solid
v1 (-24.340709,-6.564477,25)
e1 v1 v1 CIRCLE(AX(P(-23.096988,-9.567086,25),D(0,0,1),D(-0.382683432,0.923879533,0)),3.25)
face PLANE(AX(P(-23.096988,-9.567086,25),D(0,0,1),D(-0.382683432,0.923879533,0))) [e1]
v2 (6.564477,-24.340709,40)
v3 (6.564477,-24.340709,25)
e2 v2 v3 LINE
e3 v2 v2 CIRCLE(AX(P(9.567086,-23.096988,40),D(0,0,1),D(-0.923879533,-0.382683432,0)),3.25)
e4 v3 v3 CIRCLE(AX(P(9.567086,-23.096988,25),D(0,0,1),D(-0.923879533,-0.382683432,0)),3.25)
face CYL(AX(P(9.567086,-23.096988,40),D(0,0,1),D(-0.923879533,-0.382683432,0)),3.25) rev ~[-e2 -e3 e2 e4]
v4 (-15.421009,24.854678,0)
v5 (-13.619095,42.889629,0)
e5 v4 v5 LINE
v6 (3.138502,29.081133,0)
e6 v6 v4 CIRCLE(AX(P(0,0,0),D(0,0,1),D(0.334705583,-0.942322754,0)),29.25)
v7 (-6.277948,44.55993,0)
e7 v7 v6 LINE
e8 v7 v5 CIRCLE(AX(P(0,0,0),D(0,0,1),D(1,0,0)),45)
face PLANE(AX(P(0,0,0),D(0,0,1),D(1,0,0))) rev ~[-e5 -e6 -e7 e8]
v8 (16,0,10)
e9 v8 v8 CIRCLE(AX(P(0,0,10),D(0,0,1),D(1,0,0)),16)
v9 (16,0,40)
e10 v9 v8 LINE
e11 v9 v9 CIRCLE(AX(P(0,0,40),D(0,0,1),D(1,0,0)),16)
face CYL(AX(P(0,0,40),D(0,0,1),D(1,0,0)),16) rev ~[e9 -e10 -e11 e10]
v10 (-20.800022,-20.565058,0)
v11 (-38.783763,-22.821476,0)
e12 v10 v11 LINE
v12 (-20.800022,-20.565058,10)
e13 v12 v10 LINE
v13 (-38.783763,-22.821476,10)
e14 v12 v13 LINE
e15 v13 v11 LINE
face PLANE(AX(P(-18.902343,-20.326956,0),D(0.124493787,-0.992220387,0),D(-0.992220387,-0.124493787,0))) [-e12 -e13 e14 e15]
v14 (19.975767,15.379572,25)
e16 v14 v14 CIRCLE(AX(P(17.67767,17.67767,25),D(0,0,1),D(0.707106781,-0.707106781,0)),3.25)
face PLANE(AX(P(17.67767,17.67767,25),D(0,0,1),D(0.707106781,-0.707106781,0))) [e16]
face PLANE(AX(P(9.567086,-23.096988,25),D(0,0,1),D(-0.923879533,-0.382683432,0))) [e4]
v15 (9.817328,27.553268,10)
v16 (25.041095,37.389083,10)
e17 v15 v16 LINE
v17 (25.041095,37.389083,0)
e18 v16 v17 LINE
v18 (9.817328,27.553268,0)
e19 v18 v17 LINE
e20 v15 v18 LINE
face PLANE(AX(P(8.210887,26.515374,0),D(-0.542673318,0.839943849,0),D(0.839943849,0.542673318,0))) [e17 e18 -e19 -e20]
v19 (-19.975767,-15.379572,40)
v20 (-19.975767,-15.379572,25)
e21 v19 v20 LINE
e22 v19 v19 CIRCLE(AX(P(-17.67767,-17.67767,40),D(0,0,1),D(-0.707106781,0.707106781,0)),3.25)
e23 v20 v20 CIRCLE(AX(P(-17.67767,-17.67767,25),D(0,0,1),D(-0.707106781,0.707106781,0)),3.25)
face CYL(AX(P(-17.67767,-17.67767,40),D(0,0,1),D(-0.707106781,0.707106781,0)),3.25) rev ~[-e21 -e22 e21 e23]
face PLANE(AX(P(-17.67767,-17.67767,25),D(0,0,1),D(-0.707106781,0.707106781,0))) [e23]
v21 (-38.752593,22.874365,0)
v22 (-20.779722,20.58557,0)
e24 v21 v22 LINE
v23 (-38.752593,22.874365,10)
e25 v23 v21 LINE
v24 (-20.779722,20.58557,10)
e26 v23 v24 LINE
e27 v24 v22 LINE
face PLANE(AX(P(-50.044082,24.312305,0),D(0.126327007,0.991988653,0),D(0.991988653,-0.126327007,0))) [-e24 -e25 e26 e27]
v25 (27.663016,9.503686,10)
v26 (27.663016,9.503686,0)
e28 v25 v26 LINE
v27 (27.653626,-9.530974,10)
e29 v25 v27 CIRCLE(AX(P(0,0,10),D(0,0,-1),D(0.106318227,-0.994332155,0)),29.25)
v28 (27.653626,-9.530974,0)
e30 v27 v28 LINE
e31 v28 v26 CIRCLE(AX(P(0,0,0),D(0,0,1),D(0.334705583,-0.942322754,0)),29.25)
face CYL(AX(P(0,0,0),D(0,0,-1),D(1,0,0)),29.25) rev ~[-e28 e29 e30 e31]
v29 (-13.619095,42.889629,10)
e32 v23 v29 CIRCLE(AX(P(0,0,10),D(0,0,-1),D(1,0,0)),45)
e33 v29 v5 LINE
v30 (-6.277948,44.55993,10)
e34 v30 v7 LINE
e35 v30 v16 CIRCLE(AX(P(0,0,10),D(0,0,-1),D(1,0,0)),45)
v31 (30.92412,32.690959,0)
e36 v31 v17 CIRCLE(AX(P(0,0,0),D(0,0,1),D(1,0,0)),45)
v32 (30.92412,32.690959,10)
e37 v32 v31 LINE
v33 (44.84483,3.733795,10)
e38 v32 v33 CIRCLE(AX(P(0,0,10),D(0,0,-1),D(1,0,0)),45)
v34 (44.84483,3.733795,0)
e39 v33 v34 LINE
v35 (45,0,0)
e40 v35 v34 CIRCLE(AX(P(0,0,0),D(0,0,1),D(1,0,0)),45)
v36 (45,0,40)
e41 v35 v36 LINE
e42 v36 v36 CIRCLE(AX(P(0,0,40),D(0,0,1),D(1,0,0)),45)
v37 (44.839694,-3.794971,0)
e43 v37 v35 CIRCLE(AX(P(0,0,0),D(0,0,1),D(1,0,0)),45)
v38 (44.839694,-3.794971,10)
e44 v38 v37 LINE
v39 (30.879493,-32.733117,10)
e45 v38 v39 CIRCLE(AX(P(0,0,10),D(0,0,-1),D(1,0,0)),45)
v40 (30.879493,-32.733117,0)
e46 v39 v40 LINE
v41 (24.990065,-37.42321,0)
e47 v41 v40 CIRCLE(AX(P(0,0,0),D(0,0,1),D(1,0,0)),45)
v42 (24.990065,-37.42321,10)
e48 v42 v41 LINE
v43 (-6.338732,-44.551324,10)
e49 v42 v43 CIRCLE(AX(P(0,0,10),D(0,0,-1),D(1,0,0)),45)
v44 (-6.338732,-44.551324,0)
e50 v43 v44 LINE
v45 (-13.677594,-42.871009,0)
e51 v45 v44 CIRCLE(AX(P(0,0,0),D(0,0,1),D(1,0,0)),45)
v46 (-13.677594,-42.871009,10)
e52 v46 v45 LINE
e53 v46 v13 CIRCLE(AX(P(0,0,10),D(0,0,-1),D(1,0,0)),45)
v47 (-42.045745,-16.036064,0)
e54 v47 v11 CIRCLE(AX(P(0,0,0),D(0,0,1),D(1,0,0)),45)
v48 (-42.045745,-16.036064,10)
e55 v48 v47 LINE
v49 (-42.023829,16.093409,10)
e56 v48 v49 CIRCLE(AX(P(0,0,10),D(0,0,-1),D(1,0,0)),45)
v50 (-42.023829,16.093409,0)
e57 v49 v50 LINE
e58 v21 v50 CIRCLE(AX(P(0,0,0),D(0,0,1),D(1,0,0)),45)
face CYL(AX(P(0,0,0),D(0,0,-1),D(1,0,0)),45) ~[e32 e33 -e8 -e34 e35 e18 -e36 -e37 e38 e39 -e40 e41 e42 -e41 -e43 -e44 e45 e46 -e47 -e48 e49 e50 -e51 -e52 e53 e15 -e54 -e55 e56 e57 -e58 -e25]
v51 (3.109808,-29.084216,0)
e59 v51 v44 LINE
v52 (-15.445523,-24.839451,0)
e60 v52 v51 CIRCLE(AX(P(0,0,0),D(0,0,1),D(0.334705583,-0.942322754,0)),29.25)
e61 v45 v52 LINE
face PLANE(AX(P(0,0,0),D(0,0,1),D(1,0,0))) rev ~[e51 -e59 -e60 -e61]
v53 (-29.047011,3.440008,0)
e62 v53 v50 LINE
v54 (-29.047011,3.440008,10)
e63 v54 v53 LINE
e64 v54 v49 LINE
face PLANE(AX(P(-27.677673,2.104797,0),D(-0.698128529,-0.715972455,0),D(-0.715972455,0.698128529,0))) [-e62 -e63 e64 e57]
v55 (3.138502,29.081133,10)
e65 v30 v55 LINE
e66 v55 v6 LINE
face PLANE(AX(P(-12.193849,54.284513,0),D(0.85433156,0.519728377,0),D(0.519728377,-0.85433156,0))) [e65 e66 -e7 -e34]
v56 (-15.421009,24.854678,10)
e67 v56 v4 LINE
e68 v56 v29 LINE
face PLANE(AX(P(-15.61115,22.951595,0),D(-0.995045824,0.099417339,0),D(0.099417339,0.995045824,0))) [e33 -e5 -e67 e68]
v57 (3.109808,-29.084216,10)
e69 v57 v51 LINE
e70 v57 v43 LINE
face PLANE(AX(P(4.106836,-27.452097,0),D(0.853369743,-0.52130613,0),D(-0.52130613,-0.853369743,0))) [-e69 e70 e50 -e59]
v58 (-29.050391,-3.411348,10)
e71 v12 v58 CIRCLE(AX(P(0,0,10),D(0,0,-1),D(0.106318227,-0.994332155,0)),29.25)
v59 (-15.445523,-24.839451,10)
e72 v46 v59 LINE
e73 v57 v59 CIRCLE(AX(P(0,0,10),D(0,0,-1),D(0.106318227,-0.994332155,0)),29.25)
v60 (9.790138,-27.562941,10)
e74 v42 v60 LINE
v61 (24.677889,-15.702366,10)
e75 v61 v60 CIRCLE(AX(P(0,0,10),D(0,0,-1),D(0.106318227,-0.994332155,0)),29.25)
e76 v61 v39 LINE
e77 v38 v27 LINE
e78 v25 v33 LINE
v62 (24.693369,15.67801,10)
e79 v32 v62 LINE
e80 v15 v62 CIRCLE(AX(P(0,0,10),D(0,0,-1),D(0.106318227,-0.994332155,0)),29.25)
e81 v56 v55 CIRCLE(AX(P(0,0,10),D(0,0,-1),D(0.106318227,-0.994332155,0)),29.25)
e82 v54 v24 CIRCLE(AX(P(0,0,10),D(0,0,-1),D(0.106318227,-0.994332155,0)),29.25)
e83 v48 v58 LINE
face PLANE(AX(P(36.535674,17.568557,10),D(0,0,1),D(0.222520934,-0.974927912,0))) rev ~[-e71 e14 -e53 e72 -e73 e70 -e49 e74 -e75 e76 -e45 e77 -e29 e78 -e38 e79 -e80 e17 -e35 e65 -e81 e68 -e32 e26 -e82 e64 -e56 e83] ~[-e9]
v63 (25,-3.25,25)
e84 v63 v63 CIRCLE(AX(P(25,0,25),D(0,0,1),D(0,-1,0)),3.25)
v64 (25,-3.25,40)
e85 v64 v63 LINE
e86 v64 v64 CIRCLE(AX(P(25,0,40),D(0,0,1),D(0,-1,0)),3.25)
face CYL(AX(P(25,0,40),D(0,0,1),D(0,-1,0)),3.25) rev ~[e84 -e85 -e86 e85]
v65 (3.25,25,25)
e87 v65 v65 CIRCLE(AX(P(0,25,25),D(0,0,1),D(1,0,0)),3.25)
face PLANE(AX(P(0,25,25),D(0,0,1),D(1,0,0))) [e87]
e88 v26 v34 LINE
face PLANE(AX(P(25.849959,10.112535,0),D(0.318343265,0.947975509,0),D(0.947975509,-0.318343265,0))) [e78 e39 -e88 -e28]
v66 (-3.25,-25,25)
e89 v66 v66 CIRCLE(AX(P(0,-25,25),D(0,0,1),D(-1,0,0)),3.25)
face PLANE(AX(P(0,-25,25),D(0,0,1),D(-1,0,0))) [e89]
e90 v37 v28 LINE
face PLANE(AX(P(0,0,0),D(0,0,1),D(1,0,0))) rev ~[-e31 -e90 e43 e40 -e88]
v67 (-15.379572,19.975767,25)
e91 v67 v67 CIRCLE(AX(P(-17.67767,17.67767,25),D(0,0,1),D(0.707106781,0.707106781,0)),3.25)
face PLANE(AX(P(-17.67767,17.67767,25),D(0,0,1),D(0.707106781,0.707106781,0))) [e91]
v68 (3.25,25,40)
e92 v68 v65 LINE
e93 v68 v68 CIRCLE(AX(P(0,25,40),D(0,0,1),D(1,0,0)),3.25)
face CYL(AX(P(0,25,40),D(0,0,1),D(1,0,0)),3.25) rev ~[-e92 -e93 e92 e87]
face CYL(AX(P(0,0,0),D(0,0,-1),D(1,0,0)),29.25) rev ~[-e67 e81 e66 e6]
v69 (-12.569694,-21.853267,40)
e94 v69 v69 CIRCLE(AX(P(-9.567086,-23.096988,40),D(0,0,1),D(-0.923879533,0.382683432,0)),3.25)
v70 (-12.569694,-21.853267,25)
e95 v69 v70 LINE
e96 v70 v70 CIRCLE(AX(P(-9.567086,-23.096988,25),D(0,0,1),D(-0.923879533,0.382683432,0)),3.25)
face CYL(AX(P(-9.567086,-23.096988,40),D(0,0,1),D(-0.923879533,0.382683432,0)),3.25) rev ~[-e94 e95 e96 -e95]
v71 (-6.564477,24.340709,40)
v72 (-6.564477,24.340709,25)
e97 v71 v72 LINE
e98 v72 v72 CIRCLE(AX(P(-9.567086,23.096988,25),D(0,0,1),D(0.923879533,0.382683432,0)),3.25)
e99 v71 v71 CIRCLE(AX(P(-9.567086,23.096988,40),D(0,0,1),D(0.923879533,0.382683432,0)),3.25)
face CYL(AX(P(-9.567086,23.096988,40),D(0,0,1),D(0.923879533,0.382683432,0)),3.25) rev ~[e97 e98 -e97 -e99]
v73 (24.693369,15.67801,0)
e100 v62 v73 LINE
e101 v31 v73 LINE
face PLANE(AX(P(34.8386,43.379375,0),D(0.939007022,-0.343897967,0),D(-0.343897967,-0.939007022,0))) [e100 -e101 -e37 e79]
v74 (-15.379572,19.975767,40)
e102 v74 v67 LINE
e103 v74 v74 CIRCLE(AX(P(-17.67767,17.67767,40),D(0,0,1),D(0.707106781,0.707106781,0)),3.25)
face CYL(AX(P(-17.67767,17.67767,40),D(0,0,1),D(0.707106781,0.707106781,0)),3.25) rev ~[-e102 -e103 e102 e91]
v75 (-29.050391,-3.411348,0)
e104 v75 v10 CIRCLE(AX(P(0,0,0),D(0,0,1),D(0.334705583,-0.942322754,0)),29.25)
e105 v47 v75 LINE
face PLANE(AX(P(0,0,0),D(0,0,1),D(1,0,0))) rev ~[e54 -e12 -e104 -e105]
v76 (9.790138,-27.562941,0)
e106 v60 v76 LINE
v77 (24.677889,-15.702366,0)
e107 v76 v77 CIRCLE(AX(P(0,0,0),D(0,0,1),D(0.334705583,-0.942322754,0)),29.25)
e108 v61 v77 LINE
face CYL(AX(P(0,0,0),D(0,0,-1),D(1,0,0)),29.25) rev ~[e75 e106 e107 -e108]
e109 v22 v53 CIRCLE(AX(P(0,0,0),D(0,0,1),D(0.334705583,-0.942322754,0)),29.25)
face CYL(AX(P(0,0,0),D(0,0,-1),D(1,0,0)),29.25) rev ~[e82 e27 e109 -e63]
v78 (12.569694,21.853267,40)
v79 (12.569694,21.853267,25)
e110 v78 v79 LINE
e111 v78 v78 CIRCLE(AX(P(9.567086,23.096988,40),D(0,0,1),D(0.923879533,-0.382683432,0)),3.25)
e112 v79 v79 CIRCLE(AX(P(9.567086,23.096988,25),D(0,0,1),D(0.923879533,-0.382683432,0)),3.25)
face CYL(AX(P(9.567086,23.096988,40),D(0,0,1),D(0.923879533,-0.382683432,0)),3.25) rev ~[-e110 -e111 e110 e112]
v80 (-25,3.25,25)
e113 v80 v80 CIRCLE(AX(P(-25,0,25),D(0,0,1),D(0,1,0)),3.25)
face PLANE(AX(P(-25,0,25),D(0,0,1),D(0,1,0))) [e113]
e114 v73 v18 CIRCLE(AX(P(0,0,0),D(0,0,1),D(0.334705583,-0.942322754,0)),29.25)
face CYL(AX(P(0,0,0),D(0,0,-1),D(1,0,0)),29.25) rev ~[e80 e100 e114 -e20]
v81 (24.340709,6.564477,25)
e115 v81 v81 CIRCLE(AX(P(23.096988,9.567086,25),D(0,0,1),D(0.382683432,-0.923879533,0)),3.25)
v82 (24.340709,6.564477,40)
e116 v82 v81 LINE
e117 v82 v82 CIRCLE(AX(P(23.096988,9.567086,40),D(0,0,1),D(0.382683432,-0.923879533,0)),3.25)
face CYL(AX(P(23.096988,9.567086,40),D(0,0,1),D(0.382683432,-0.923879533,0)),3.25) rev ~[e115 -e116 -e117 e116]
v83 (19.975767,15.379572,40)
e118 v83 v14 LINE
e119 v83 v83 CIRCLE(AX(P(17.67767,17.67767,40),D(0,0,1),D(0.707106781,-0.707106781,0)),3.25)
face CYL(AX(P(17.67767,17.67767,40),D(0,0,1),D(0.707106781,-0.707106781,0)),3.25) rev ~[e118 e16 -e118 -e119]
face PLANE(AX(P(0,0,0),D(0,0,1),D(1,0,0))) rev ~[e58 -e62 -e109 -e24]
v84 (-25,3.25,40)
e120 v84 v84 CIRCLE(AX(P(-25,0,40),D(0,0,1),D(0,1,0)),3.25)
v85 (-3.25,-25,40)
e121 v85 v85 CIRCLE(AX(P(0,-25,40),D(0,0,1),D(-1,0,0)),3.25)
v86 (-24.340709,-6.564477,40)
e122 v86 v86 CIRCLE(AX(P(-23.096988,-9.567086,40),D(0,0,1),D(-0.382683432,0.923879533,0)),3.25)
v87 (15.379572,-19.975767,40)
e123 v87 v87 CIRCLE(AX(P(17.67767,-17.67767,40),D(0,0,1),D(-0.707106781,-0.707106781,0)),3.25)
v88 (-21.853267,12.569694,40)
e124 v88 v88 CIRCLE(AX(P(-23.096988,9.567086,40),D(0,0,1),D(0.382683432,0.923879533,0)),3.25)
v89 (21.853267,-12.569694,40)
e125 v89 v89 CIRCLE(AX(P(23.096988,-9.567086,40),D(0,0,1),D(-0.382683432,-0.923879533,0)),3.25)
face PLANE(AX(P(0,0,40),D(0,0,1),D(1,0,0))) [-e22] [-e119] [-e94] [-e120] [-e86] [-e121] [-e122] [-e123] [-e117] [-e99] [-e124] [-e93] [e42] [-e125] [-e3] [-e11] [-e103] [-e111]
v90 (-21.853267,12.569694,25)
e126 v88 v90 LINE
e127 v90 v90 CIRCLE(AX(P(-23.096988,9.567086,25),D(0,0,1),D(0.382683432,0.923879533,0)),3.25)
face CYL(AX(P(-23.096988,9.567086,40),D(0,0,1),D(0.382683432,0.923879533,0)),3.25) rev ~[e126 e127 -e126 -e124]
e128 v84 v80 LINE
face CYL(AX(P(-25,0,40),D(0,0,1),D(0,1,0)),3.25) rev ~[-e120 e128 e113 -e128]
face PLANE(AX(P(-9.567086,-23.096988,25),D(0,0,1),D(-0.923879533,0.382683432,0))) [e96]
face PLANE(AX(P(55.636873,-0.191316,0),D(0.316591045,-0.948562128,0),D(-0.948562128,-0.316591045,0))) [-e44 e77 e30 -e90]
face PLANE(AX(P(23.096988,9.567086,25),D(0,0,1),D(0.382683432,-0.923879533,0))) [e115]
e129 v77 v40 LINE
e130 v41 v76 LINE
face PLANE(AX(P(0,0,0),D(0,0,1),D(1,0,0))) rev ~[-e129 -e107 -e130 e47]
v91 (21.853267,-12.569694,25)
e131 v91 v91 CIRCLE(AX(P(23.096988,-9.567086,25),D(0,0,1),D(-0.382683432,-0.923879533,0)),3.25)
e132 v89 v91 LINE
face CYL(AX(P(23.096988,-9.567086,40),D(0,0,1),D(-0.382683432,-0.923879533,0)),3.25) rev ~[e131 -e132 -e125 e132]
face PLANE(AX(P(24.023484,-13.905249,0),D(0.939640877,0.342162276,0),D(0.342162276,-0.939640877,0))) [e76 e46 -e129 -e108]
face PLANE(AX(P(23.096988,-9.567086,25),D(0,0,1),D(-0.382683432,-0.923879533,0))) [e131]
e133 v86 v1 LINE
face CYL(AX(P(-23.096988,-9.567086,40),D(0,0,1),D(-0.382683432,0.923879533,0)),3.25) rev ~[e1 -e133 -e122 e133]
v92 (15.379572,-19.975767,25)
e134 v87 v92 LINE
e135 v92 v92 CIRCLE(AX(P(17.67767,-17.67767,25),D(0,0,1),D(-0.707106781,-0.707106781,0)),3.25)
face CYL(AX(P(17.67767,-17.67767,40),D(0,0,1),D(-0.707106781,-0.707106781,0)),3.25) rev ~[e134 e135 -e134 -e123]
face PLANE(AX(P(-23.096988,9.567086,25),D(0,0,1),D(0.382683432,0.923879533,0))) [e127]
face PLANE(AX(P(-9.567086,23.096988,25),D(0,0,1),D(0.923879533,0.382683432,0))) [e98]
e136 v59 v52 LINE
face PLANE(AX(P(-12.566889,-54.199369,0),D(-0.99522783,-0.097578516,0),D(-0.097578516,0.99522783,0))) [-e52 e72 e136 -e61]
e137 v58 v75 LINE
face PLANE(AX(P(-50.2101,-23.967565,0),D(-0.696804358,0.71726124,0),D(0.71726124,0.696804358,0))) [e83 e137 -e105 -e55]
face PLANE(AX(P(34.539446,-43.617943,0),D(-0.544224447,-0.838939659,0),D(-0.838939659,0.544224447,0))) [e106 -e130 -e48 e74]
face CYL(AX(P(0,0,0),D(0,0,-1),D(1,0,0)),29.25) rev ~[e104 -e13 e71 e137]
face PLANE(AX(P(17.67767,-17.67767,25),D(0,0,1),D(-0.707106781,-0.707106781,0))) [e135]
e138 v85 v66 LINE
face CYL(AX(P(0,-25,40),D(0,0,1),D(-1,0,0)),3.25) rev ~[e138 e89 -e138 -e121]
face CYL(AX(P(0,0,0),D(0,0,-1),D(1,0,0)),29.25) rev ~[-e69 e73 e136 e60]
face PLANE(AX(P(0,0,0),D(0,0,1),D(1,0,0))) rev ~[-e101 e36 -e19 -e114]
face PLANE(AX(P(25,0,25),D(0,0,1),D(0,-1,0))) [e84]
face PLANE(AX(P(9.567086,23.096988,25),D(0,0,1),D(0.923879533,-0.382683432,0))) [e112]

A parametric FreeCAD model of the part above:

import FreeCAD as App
import Part
import Sketcher

doc = App.newDocument("Part")
params = doc.addObject("Spreadsheet::Sheet", "Params")
for row, (alias, value) in enumerate([
    ("sketch1_diameter", "90 mm"),
    ("pad1_length", "40 mm"),
    ("sketch2_diameter", "24 mm"),
    ("sketch3_diameter", "58.5 mm"),
    ("pocket2_length", "10 mm"),
    ("sketch4_diameter", "6.5 mm"),
    ("pocket3_length", "15 mm"),
    ("sketch5_diameter", "32 mm"),
    ("sketch6_length", "48 mm"),
    ("pocket5_length", "10 mm"),
], start=1):
    params.set(f"A{row}", alias)
    params.set(f"B{row}", "=" + value)
    params.setAlias(f"B{row}", alias)

body = doc.addObject("PartDesign::Body", "Body")

# Sketch on XY plane
sketch1 = body.newObject("Sketcher::SketchObject", "Sketch")
sketch1.AttachmentSupport = (doc.getObject("XY_Plane"), [""])
sketch1.MapMode = "FlatFace"
sketch1.addGeometry(Part.Circle(App.Vector(0, 0, 0), App.Vector(0, 0, 1), 45), False)
sketch1.addConstraint([
    Sketcher.Constraint("Coincident", 0, 3, -1, 1),
    Sketcher.Constraint("Diameter", 0, 90.0),
])
sketch1.setExpression("Constraints[1]", "Params.sketch1_diameter")
pad1 = body.newObject("PartDesign::Pad", "Pad")
pad1.Profile = sketch1
pad1.setExpression("Length", "Params.pad1_length")

# Sketch on XY plane
sketch2 = body.newObject("Sketcher::SketchObject", "Sketch001")
sketch2.AttachmentSupport = (doc.getObject("XY_Plane"), [""])
sketch2.MapMode = "FlatFace"
sketch2.addGeometry(Part.Circle(App.Vector(0, 0, 0), App.Vector(0, 0, 1), 12), False)
sketch2.addConstraint([
    Sketcher.Constraint("Coincident", 0, 3, -1, 1),
    Sketcher.Constraint("Diameter", 0, 24.0),
])
sketch2.setExpression("Constraints[1]", "Params.sketch2_diameter")
pocket1 = body.newObject("PartDesign::Pocket", "Pocket")
pocket1.Profile = sketch2
pocket1.Type = "ThroughAll"
pocket1.Reversed = True

# Sketch on XY plane
sketch3 = body.newObject("Sketcher::SketchObject", "Sketch002")
sketch3.AttachmentSupport = (doc.getObject("XY_Plane"), [""])
sketch3.MapMode = "FlatFace"
sketch3.addGeometry(Part.Circle(App.Vector(0, 0, 0), App.Vector(0, 0, 1), 29), False)
sketch3.addConstraint([
    Sketcher.Constraint("Coincident", 0, 3, -1, 1),
    Sketcher.Constraint("Diameter", 0, 58.5),
])
sketch3.setExpression("Constraints[1]", "Params.sketch3_diameter")
pocket2 = body.newObject("PartDesign::Pocket", "Pocket001")
pocket2.Profile = sketch3
pocket2.setExpression("Length", "Params.pocket2_length")
pocket2.Reversed = True

# Sketch on XY plane
sketch4 = body.newObject("Sketcher::SketchObject", "Sketch003")
sketch4.AttachmentSupport = (doc.getObject("XY_Plane"), [""])
sketch4.MapMode = "FlatFace"
sketch4.AttachmentOffset = App.Placement(App.Vector(0, 0, 40), App.Rotation())
sketch4.addGeometry(Part.Circle(App.Vector(0, 25, 0), App.Vector(0, 0, 1), 3.2), False)
sketch4.addConstraint([
    Sketcher.Constraint("PointOnObject", 0, 3, -2),
    Sketcher.Constraint("Diameter", 0, 6.5),
    Sketcher.Constraint("DistanceY", -1, 1, 0, 3, 25.0),
])
sketch4.setExpression("Constraints[1]", "Params.sketch4_diameter")
pocket3 = body.newObject("PartDesign::Pocket", "Pocket002")
pocket3.Profile = sketch4
pocket3.setExpression("Length", "Params.pocket3_length")
doc.recompute()

polarpattern = body.newObject("PartDesign::PolarPattern", "PolarPattern")
polarpattern.Originals = [pocket3]
polarpattern.Axis = (doc.getObject("Z_Axis"), [""])
polarpattern.Angle = 360
polarpattern.Occurrences = 16
body.Tip = polarpattern

# Sketch on XY plane
sketch5 = body.newObject("Sketcher::SketchObject", "Sketch004")
sketch5.AttachmentSupport = (doc.getObject("XY_Plane"), [""])
sketch5.MapMode = "FlatFace"
sketch5.AttachmentOffset = App.Placement(App.Vector(0, 0, 40), App.Rotation())
sketch5.addGeometry(Part.Circle(App.Vector(0, 0, 0), App.Vector(0, 0, 1), 16), False)
sketch5.addConstraint([
    Sketcher.Constraint("Coincident", 0, 3, -1, 1),
    Sketcher.Constraint("Diameter", 0, 32.0),
])
sketch5.setExpression("Constraints[1]", "Params.sketch5_diameter")
pocket4 = body.newObject("PartDesign::Pocket", "Pocket003")
pocket4.Profile = sketch5
pocket4.Type = "ThroughAll"

# Sketch on XY plane
sketch6 = body.newObject("Sketcher::SketchObject", "Sketch005")
sketch6.AttachmentSupport = (doc.getObject("XY_Plane"), [""])
sketch6.MapMode = "FlatFace"
sketch6.addGeometry([
    Part.LineSegment(App.Vector(35, -44, 0), App.Vector(-12, -54, 0)),  # 0
    Part.LineSegment(App.Vector(-12, -54, 0), App.Vector(4, -27, 0)),  # 1
    Part.LineSegment(App.Vector(4, -27, 0), App.Vector(-1, -24, 0)),  # 2
    Part.LineSegment(App.Vector(-1, -24, 0), App.Vector(11, -22, 0)),  # 3
    Part.LineSegment(App.Vector(11, -22, 0), App.Vector(8, -27, 0)),  # 4
    Part.LineSegment(App.Vector(8, -27, 0), App.Vector(35, -44, 0)),  # 5
], False)
sketch6.addConstraint([
    Sketcher.Constraint("Coincident", 0, 2, 1, 1),
    Sketcher.Constraint("Coincident", 1, 2, 2, 1),
    Sketcher.Constraint("Coincident", 2, 2, 3, 1),
    Sketcher.Constraint("Coincident", 3, 2, 4, 1),
    Sketcher.Constraint("Coincident", 4, 2, 5, 1),
    Sketcher.Constraint("Coincident", 5, 2, 0, 1),
    Sketcher.Constraint("Parallel", 0, 3),
    Sketcher.Constraint("Parallel", 1, 4),
    Sketcher.Constraint("Parallel", 2, 5),
    Sketcher.Constraint("Equal", 2, 4),
    Sketcher.Constraint("Equal", 1, 5),
    Sketcher.Constraint("Distance", 0, 48.0),
    Sketcher.Constraint("Distance", 3, 11.8539),
    Sketcher.Constraint("DistanceX", 3, 2, 5, 2, 23.4849),
    Sketcher.Constraint("Distance", 1, 31.409141),
    Sketcher.Constraint("DistanceX", -1, 1, 4, 2, 8.189071),
    Sketcher.Constraint("DistanceY", 4, 2, -1, 1, 26.52432),
    Sketcher.Constraint("DistanceX", 0, 2, 1, 2, 16.373778),
])
sketch6.setExpression("Constraints[11]", "Params.sketch6_length")
pocket5 = body.newObject("PartDesign::Pocket", "Pocket004")
pocket5.Profile = sketch6
pocket5.setExpression("Length", "Params.pocket5_length")
pocket5.Reversed = True
doc.recompute()

polarpattern2 = body.newObject("PartDesign::PolarPattern", "PolarPattern001")
polarpattern2.Originals = [pocket5]
polarpattern2.Axis = (doc.getObject("Z_Axis"), [""])
polarpattern2.Angle = 360
polarpattern2.Occurrences = 7
body.Tip = polarpattern2

doc.recompute()
